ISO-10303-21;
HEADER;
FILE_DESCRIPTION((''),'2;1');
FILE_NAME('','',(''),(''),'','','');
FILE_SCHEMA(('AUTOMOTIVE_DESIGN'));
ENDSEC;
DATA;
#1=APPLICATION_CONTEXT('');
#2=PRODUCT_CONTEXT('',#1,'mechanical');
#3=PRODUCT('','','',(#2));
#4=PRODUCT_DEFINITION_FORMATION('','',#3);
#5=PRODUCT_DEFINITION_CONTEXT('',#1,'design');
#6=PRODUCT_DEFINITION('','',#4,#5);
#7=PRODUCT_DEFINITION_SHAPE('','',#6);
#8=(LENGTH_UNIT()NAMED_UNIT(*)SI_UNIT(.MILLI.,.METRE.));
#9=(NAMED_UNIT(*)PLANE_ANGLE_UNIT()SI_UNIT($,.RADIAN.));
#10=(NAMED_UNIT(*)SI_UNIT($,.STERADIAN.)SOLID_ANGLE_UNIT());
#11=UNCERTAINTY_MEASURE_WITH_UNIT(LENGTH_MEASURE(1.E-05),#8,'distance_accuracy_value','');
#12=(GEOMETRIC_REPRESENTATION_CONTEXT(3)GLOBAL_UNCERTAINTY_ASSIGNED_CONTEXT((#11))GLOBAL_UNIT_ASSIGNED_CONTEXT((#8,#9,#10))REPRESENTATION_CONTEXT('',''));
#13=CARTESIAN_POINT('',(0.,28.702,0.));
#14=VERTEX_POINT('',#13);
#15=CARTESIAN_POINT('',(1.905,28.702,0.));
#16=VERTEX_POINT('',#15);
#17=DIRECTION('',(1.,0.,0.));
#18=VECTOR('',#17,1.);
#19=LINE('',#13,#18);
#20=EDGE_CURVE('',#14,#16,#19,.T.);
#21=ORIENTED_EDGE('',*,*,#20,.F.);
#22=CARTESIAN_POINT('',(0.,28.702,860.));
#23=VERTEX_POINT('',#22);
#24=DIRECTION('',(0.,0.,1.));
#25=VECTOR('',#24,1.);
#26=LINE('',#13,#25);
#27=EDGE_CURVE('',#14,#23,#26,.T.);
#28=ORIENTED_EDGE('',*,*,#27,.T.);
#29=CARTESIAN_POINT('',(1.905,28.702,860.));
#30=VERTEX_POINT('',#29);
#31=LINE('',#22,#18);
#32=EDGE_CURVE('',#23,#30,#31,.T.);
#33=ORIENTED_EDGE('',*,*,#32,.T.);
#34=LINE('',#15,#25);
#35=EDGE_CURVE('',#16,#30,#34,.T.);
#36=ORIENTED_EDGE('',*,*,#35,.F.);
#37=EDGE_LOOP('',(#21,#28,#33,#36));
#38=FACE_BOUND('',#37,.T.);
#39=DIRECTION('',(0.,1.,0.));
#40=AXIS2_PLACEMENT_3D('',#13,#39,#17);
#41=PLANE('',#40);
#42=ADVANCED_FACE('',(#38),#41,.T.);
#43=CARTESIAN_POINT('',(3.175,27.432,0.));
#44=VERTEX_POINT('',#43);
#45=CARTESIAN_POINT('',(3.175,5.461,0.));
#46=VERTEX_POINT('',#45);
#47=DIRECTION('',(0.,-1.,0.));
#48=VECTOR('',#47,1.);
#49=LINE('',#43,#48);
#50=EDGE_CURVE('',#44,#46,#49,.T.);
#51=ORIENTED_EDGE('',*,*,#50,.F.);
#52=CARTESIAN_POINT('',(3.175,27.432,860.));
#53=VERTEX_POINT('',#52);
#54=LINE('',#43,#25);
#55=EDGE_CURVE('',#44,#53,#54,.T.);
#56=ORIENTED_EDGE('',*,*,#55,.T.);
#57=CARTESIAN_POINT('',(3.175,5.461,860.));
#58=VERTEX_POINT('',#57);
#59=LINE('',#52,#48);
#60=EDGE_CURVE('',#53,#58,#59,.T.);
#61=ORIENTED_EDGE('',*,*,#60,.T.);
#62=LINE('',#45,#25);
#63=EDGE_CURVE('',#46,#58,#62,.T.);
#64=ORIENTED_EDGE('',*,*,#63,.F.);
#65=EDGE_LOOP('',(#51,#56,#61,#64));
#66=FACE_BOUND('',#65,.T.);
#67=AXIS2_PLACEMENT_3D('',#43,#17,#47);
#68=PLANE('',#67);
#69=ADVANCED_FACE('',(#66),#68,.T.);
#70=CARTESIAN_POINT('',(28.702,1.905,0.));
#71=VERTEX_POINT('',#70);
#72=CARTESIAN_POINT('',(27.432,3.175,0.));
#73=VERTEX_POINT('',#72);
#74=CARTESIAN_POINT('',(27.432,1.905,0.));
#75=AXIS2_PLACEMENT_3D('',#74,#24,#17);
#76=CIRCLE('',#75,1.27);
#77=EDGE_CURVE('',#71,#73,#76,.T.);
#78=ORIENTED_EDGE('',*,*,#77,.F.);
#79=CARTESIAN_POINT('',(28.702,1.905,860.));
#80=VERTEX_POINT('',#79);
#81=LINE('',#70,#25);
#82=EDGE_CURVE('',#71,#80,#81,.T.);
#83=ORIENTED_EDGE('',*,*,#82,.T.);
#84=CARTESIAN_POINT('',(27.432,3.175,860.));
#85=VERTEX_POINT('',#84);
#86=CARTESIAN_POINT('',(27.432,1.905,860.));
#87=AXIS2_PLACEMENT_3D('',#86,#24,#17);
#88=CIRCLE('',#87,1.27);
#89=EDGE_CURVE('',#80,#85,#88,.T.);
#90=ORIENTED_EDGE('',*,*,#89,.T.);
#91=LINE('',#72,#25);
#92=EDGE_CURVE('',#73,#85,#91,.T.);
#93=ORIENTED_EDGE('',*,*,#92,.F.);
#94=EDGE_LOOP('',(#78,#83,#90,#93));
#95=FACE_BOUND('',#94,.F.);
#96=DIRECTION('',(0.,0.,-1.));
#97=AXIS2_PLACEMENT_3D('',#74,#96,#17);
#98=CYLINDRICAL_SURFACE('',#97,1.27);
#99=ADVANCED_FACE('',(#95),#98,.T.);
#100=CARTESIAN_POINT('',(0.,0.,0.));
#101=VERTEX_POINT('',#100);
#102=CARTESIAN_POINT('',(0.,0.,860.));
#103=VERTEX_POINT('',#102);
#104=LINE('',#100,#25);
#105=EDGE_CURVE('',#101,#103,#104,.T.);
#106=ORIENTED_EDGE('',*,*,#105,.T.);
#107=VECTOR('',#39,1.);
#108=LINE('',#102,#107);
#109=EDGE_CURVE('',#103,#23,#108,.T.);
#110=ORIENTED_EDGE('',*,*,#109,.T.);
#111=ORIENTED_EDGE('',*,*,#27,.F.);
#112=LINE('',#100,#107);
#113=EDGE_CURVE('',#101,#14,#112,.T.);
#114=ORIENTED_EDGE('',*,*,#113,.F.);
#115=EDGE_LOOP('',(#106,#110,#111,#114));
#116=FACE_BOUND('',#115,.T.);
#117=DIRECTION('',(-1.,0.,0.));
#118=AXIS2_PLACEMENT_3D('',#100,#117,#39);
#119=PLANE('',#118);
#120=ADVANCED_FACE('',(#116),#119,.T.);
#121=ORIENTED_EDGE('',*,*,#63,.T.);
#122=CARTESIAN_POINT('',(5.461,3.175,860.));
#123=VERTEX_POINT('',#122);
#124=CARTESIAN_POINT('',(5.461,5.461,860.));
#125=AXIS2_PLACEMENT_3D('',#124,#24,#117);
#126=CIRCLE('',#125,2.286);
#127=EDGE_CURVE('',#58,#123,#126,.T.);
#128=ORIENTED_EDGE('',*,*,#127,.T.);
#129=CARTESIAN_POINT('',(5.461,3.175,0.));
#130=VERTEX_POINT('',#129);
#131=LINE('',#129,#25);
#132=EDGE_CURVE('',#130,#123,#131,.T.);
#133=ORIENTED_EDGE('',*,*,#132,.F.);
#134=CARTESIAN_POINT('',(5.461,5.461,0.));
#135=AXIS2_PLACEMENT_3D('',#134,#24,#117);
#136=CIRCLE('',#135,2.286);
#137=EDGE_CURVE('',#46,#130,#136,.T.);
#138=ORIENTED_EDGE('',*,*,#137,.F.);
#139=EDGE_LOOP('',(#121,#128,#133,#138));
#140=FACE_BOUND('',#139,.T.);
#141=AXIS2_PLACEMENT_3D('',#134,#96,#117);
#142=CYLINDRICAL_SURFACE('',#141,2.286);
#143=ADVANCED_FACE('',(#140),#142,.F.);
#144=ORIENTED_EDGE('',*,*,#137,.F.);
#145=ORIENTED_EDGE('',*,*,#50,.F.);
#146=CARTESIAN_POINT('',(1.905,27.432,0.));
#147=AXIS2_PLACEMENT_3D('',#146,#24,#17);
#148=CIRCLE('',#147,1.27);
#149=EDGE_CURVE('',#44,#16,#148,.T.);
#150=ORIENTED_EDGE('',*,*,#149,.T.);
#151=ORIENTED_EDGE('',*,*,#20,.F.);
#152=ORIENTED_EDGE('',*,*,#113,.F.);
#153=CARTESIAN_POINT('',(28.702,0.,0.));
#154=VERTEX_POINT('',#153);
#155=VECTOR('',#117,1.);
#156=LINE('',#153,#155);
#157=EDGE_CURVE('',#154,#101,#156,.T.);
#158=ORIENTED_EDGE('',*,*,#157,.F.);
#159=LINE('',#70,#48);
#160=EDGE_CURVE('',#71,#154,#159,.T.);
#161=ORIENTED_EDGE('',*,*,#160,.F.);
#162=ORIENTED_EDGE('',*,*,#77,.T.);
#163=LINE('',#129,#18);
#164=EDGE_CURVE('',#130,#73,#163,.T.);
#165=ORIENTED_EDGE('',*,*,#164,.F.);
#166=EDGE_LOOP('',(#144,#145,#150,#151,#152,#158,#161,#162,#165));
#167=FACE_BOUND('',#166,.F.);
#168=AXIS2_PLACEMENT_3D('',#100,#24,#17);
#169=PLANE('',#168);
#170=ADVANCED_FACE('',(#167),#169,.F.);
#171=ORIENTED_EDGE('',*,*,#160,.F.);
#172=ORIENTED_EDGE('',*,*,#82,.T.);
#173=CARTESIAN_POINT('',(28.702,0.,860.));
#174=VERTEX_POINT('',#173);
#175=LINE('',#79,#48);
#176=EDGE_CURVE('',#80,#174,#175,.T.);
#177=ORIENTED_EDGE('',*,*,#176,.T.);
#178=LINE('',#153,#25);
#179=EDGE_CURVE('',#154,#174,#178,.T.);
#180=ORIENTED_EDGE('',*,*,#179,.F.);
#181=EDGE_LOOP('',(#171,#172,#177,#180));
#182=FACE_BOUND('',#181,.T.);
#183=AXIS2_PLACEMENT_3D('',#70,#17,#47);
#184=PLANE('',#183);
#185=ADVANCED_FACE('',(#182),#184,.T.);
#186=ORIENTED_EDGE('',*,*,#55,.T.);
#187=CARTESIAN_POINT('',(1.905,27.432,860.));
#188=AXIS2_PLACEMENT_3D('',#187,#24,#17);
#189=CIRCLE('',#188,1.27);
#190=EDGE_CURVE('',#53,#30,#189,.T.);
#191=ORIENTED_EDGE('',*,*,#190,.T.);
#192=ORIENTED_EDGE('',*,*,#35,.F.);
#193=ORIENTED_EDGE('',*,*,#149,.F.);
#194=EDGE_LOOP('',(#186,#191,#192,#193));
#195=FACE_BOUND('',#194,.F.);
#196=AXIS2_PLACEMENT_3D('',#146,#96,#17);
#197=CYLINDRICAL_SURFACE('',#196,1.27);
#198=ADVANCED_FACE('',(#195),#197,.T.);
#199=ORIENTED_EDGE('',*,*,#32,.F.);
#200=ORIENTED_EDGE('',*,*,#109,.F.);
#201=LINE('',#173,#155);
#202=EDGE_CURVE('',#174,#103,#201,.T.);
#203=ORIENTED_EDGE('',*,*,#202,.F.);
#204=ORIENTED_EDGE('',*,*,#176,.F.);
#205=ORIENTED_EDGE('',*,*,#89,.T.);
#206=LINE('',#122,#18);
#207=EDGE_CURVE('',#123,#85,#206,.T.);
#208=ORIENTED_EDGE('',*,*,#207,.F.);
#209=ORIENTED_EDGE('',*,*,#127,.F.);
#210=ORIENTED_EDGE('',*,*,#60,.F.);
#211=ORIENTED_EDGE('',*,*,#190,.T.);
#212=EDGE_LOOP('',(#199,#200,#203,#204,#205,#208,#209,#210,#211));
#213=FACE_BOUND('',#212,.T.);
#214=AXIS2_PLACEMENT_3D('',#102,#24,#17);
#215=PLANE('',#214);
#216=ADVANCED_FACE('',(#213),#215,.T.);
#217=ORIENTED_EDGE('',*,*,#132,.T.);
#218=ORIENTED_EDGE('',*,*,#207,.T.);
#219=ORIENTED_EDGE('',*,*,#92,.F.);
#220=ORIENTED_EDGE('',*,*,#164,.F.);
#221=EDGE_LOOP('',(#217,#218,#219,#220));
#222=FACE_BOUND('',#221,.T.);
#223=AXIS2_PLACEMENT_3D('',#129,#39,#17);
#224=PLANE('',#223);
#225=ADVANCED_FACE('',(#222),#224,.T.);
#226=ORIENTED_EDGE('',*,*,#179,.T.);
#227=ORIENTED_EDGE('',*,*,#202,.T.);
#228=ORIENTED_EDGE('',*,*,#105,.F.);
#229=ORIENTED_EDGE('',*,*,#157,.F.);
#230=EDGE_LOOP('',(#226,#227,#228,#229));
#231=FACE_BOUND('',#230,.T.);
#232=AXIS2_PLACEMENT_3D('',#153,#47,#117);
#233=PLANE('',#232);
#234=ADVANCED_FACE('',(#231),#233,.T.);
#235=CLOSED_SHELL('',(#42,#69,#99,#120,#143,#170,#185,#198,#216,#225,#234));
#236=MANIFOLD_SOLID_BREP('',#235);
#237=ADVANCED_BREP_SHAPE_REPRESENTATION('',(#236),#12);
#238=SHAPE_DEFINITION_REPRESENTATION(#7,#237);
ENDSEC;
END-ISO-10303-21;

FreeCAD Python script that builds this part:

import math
import FreeCAD as App
import Part
import Sketcher
from FreeCAD import Vector
Q = App.Units.Quantity

doc = App.newDocument("Part")
body = doc.addObject("PartDesign::Body", "Body")

# Sketch on XY plane
sketch1 = body.newObject("Sketcher::SketchObject", "Sketch")
sketch1.AttachmentSupport = (doc.getObject("XY_Plane"), [""])
sketch1.MapMode = "FlatFace"
sketch1.addGeometry([
    Part.LineSegment(Vector(0, 0, 0), Vector(28.7, 0, 0)),  # 0
    Part.LineSegment(Vector(28.7, 0, 0), Vector(28.7, 1.9, 0)),  # 1
    Part.ArcOfCircle(Part.Circle(Vector(27.4, 1.9, 0), Vector(0, 0, 1), 1.3), math.radians(0), math.radians(90)),  # 2
    Part.LineSegment(Vector(27.4, 3.2, 0), Vector(5.5, 3.2, 0)),  # 3
    Part.ArcOfCircle(Part.Circle(Vector(5.5, 5.5, 0), Vector(0, 0, 1), 2.3), math.radians(180), math.radians(270)),  # 4
    Part.LineSegment(Vector(3.2, 5.5, 0), Vector(3.2, 27.4, 0)),  # 5
    Part.ArcOfCircle(Part.Circle(Vector(1.9, 27.4, 0), Vector(0, 0, 1), 1.3), math.radians(0), math.radians(90)),  # 6
    Part.LineSegment(Vector(1.9, 28.7, 0), Vector(0, 28.7, 0)),  # 7
    Part.LineSegment(Vector(0, 28.7, 0), Vector(0, 0, 0)),  # 8
], False)
sketch1.addConstraint([
    Sketcher.Constraint("Coincident", 0, 2, 1, 1),
    Sketcher.Constraint("Tangent", 1, 2, 2, 1),
    Sketcher.Constraint("Tangent", 2, 2, 3, 1),
    Sketcher.Constraint("Tangent", 3, 2, 4, 2),
    Sketcher.Constraint("Tangent", 4, 1, 5, 1),
    Sketcher.Constraint("Tangent", 5, 2, 6, 1),
    Sketcher.Constraint("Tangent", 6, 2, 7, 1),
    Sketcher.Constraint("Coincident", 7, 2, 8, 1),
    Sketcher.Constraint("Coincident", 8, 2, 0, 1),
    Sketcher.Constraint("Horizontal", 0),
    Sketcher.Constraint("Vertical", 1),
    Sketcher.Constraint("Horizontal", 3),
    Sketcher.Constraint("Vertical", 5),
    Sketcher.Constraint("Horizontal", 7),
    Sketcher.Constraint("Vertical", 8),
    Sketcher.Constraint("Coincident", 8, 2, -1, 1),
    Sketcher.Constraint("Equal", 2, 6),
    Sketcher.Constraint("Equal", 7, 1),
    Sketcher.Constraint("Equal", 3, 5),
    Sketcher.Constraint("Radius", 2, Q("0.05 in")),
    Sketcher.Constraint("Radius", 4, Q("0.09 in")),
    Sketcher.Constraint("DistanceX", 0, 1, 0, 2, Q("1.13 in")),
    Sketcher.Constraint("DistanceY", -1, 1, 2, 2, Q("0.125 in")),
])
pad1 = body.newObject("PartDesign::Pad", "Pad")
pad1.Profile = sketch1
pad1.Length = 860

doc.recompute()
